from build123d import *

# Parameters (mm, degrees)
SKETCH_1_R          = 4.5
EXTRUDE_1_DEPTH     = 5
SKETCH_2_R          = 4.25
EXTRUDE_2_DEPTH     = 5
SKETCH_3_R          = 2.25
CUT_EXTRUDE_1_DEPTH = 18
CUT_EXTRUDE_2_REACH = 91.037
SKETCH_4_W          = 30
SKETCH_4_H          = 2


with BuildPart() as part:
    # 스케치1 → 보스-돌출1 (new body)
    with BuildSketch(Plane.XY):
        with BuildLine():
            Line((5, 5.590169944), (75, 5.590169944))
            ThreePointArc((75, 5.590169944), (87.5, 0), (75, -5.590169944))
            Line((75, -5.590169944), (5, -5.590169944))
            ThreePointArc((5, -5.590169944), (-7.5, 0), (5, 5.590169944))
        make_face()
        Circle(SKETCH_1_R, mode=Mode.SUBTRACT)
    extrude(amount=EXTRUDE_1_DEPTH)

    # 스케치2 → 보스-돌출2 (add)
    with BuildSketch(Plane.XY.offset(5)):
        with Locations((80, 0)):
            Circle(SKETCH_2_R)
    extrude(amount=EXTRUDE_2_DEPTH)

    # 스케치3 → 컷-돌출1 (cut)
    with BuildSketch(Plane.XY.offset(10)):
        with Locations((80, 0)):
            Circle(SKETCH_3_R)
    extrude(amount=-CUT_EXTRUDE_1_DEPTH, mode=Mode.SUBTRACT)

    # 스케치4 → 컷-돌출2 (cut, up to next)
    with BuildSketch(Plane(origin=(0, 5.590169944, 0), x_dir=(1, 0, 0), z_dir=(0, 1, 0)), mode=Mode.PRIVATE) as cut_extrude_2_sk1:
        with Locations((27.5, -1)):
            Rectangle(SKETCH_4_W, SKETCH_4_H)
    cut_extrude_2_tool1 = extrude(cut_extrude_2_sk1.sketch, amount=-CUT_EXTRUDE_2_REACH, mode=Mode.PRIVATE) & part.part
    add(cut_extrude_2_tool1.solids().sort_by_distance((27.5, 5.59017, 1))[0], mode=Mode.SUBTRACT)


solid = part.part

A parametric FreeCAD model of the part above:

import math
import FreeCAD as App
import Part
import Sketcher


def add_polygon(sketch, points):
    """Adds a closed chain of lines whose ends are joined by coincident constraints."""
    first, n = sketch.GeometryCount, len(points)
    for a, b in zip(points, points[1:] + points[:1]):
        sketch.addGeometry(Part.LineSegment(App.Vector(*a, 0), App.Vector(*b, 0)), False)
    for i in range(n):
        sketch.addConstraint(Sketcher.Constraint("Coincident", first + i, 2, first + (i + 1) % n, 1))

doc = App.newDocument("Part")
body = doc.addObject("PartDesign::Body", "Body")

# Sketch on XY plane
sketch1 = doc.addObject("Sketcher::SketchObject", "Sketch")
body.addObject(sketch1)
sketch1.AttachmentSupport = (doc.XY_Plane, [""])
sketch1.MapMode = "FlatFace"
sketch1.addGeometry(Part.LineSegment(App.Vector(75, 5.6, 0), App.Vector(5, 5.6, 0)), False)
sketch1.addGeometry(Part.ArcOfCircle(Part.Circle(App.Vector(0, 0, 0), App.Vector(0, 0, 1), 7.5), math.radians(48), math.radians(312)), False)
sketch1.addGeometry(Part.LineSegment(App.Vector(5, -5.6, 0), App.Vector(75, -5.6, 0)), False)
sketch1.addGeometry(Part.ArcOfCircle(Part.Circle(App.Vector(80, 0, 0), App.Vector(0, 0, 1), 7.5), math.radians(-132), math.radians(132)), False)
sketch1.addGeometry(Part.Circle(App.Vector(0, 0, 0), App.Vector(0, 0, 1), 4.5), False)
sketch1.addConstraint(Sketcher.Constraint("Coincident", 0, 2, 1, 1))
sketch1.addConstraint(Sketcher.Constraint("Coincident", 1, 2, 2, 1))
sketch1.addConstraint(Sketcher.Constraint("Coincident", 2, 2, 3, 1))
sketch1.addConstraint(Sketcher.Constraint("Coincident", 3, 2, 0, 1))
sketch1.addConstraint(Sketcher.Constraint("Horizontal", 0))
sketch1.addConstraint(Sketcher.Constraint("Horizontal", 2))
sketch1.addConstraint(Sketcher.Constraint("Coincident", 1, 3, -1, 1))
sketch1.addConstraint(Sketcher.Constraint("Coincident", 4, 3, -1, 1))
sketch1.addConstraint(Sketcher.Constraint("Equal", 1, 3))
sketch1.addConstraint(Sketcher.Constraint("Symmetric", 2, 2, 3, 2, -1))
sketch1.addConstraint(Sketcher.Constraint("Diameter", 4, 9.0))
sketch1.addConstraint(Sketcher.Constraint("Radius", 1, 7.5))
sketch1.addConstraint(Sketcher.Constraint("DistanceX", 0, 2, 0, 1, 70.0))
sketch1.addConstraint(Sketcher.Constraint("DistanceX", -1, 1, 3, 3, 80.0))
pad1 = doc.addObject("PartDesign::Pad", "Pad")
body.addObject(pad1)
pad1.Profile = sketch1
pad1.Length = 5

# Sketch on XY plane
sketch2 = doc.addObject("Sketcher::SketchObject", "Sketch001")
body.addObject(sketch2)
sketch2.AttachmentSupport = (doc.XY_Plane, [""])
sketch2.MapMode = "FlatFace"
sketch2.AttachmentOffset = App.Placement(App.Vector(0, 0, 5), App.Rotation())
sketch2.addGeometry(Part.Circle(App.Vector(80, 0, 0), App.Vector(0, 0, 1), 4.2), False)
sketch2.addConstraint(Sketcher.Constraint("PointOnObject", 0, 3, -1))
sketch2.addConstraint(Sketcher.Constraint("Diameter", 0, 8.5))
sketch2.addConstraint(Sketcher.Constraint("DistanceX", -1, 1, 0, 3, 80.0))
pad2 = doc.addObject("PartDesign::Pad", "Pad001")
body.addObject(pad2)
pad2.Profile = sketch2
pad2.Length = 5

# Sketch on XY plane
sketch3 = doc.addObject("Sketcher::SketchObject", "Sketch002")
body.addObject(sketch3)
sketch3.AttachmentSupport = (doc.XY_Plane, [""])
sketch3.MapMode = "FlatFace"
sketch3.AttachmentOffset = App.Placement(App.Vector(0, 0, 10), App.Rotation())
sketch3.addGeometry(Part.Circle(App.Vector(80, 0, 0), App.Vector(0, 0, 1), 2.2), False)
sketch3.addConstraint(Sketcher.Constraint("PointOnObject", 0, 3, -1))
sketch3.addConstraint(Sketcher.Constraint("Diameter", 0, 4.5))
sketch3.addConstraint(Sketcher.Constraint("DistanceX", -1, 1, 0, 3, 80.0))
pocket1 = doc.addObject("PartDesign::Pocket", "Pocket")
body.addObject(pocket1)
pocket1.Profile = sketch3
pocket1.Length = 18

# Sketch on XZ plane
sketch4 = doc.addObject("Sketcher::SketchObject", "Sketch003")
body.addObject(sketch4)
sketch4.AttachmentSupport = (doc.XZ_Plane, [""])
sketch4.MapMode = "FlatFace"
sketch4.AttachmentOffset = App.Placement(App.Vector(0, 0, -5.59017), App.Rotation())
add_polygon(sketch4, [(12.5, 0), (12.5, 2), (42.5, 2), (42.5, 0)])  # lines 0-3
sketch4.addConstraint(Sketcher.Constraint("Vertical", 0))
sketch4.addConstraint(Sketcher.Constraint("Horizontal", 1))
sketch4.addConstraint(Sketcher.Constraint("Vertical", 2))
sketch4.addConstraint(Sketcher.Constraint("Horizontal", 3))
sketch4.addConstraint(Sketcher.Constraint("PointOnObject", 2, 2, -1))
sketch4.addConstraint(Sketcher.Constraint("DistanceX", 1, 1, 1, 2, 30.0))
sketch4.addConstraint(Sketcher.Constraint("DistanceY", 0, 1, 0, 2, 2.0))
sketch4.addConstraint(Sketcher.Constraint("DistanceX", -1, 1, 0, 2, 12.5))
pocket2 = doc.addObject("PartDesign::Pocket", "Pocket001")
body.addObject(pocket2)
pocket2.Profile = sketch4
pocket2.Type = "UpToFirst"
pocket2.Reversed = True

doc.recompute()
